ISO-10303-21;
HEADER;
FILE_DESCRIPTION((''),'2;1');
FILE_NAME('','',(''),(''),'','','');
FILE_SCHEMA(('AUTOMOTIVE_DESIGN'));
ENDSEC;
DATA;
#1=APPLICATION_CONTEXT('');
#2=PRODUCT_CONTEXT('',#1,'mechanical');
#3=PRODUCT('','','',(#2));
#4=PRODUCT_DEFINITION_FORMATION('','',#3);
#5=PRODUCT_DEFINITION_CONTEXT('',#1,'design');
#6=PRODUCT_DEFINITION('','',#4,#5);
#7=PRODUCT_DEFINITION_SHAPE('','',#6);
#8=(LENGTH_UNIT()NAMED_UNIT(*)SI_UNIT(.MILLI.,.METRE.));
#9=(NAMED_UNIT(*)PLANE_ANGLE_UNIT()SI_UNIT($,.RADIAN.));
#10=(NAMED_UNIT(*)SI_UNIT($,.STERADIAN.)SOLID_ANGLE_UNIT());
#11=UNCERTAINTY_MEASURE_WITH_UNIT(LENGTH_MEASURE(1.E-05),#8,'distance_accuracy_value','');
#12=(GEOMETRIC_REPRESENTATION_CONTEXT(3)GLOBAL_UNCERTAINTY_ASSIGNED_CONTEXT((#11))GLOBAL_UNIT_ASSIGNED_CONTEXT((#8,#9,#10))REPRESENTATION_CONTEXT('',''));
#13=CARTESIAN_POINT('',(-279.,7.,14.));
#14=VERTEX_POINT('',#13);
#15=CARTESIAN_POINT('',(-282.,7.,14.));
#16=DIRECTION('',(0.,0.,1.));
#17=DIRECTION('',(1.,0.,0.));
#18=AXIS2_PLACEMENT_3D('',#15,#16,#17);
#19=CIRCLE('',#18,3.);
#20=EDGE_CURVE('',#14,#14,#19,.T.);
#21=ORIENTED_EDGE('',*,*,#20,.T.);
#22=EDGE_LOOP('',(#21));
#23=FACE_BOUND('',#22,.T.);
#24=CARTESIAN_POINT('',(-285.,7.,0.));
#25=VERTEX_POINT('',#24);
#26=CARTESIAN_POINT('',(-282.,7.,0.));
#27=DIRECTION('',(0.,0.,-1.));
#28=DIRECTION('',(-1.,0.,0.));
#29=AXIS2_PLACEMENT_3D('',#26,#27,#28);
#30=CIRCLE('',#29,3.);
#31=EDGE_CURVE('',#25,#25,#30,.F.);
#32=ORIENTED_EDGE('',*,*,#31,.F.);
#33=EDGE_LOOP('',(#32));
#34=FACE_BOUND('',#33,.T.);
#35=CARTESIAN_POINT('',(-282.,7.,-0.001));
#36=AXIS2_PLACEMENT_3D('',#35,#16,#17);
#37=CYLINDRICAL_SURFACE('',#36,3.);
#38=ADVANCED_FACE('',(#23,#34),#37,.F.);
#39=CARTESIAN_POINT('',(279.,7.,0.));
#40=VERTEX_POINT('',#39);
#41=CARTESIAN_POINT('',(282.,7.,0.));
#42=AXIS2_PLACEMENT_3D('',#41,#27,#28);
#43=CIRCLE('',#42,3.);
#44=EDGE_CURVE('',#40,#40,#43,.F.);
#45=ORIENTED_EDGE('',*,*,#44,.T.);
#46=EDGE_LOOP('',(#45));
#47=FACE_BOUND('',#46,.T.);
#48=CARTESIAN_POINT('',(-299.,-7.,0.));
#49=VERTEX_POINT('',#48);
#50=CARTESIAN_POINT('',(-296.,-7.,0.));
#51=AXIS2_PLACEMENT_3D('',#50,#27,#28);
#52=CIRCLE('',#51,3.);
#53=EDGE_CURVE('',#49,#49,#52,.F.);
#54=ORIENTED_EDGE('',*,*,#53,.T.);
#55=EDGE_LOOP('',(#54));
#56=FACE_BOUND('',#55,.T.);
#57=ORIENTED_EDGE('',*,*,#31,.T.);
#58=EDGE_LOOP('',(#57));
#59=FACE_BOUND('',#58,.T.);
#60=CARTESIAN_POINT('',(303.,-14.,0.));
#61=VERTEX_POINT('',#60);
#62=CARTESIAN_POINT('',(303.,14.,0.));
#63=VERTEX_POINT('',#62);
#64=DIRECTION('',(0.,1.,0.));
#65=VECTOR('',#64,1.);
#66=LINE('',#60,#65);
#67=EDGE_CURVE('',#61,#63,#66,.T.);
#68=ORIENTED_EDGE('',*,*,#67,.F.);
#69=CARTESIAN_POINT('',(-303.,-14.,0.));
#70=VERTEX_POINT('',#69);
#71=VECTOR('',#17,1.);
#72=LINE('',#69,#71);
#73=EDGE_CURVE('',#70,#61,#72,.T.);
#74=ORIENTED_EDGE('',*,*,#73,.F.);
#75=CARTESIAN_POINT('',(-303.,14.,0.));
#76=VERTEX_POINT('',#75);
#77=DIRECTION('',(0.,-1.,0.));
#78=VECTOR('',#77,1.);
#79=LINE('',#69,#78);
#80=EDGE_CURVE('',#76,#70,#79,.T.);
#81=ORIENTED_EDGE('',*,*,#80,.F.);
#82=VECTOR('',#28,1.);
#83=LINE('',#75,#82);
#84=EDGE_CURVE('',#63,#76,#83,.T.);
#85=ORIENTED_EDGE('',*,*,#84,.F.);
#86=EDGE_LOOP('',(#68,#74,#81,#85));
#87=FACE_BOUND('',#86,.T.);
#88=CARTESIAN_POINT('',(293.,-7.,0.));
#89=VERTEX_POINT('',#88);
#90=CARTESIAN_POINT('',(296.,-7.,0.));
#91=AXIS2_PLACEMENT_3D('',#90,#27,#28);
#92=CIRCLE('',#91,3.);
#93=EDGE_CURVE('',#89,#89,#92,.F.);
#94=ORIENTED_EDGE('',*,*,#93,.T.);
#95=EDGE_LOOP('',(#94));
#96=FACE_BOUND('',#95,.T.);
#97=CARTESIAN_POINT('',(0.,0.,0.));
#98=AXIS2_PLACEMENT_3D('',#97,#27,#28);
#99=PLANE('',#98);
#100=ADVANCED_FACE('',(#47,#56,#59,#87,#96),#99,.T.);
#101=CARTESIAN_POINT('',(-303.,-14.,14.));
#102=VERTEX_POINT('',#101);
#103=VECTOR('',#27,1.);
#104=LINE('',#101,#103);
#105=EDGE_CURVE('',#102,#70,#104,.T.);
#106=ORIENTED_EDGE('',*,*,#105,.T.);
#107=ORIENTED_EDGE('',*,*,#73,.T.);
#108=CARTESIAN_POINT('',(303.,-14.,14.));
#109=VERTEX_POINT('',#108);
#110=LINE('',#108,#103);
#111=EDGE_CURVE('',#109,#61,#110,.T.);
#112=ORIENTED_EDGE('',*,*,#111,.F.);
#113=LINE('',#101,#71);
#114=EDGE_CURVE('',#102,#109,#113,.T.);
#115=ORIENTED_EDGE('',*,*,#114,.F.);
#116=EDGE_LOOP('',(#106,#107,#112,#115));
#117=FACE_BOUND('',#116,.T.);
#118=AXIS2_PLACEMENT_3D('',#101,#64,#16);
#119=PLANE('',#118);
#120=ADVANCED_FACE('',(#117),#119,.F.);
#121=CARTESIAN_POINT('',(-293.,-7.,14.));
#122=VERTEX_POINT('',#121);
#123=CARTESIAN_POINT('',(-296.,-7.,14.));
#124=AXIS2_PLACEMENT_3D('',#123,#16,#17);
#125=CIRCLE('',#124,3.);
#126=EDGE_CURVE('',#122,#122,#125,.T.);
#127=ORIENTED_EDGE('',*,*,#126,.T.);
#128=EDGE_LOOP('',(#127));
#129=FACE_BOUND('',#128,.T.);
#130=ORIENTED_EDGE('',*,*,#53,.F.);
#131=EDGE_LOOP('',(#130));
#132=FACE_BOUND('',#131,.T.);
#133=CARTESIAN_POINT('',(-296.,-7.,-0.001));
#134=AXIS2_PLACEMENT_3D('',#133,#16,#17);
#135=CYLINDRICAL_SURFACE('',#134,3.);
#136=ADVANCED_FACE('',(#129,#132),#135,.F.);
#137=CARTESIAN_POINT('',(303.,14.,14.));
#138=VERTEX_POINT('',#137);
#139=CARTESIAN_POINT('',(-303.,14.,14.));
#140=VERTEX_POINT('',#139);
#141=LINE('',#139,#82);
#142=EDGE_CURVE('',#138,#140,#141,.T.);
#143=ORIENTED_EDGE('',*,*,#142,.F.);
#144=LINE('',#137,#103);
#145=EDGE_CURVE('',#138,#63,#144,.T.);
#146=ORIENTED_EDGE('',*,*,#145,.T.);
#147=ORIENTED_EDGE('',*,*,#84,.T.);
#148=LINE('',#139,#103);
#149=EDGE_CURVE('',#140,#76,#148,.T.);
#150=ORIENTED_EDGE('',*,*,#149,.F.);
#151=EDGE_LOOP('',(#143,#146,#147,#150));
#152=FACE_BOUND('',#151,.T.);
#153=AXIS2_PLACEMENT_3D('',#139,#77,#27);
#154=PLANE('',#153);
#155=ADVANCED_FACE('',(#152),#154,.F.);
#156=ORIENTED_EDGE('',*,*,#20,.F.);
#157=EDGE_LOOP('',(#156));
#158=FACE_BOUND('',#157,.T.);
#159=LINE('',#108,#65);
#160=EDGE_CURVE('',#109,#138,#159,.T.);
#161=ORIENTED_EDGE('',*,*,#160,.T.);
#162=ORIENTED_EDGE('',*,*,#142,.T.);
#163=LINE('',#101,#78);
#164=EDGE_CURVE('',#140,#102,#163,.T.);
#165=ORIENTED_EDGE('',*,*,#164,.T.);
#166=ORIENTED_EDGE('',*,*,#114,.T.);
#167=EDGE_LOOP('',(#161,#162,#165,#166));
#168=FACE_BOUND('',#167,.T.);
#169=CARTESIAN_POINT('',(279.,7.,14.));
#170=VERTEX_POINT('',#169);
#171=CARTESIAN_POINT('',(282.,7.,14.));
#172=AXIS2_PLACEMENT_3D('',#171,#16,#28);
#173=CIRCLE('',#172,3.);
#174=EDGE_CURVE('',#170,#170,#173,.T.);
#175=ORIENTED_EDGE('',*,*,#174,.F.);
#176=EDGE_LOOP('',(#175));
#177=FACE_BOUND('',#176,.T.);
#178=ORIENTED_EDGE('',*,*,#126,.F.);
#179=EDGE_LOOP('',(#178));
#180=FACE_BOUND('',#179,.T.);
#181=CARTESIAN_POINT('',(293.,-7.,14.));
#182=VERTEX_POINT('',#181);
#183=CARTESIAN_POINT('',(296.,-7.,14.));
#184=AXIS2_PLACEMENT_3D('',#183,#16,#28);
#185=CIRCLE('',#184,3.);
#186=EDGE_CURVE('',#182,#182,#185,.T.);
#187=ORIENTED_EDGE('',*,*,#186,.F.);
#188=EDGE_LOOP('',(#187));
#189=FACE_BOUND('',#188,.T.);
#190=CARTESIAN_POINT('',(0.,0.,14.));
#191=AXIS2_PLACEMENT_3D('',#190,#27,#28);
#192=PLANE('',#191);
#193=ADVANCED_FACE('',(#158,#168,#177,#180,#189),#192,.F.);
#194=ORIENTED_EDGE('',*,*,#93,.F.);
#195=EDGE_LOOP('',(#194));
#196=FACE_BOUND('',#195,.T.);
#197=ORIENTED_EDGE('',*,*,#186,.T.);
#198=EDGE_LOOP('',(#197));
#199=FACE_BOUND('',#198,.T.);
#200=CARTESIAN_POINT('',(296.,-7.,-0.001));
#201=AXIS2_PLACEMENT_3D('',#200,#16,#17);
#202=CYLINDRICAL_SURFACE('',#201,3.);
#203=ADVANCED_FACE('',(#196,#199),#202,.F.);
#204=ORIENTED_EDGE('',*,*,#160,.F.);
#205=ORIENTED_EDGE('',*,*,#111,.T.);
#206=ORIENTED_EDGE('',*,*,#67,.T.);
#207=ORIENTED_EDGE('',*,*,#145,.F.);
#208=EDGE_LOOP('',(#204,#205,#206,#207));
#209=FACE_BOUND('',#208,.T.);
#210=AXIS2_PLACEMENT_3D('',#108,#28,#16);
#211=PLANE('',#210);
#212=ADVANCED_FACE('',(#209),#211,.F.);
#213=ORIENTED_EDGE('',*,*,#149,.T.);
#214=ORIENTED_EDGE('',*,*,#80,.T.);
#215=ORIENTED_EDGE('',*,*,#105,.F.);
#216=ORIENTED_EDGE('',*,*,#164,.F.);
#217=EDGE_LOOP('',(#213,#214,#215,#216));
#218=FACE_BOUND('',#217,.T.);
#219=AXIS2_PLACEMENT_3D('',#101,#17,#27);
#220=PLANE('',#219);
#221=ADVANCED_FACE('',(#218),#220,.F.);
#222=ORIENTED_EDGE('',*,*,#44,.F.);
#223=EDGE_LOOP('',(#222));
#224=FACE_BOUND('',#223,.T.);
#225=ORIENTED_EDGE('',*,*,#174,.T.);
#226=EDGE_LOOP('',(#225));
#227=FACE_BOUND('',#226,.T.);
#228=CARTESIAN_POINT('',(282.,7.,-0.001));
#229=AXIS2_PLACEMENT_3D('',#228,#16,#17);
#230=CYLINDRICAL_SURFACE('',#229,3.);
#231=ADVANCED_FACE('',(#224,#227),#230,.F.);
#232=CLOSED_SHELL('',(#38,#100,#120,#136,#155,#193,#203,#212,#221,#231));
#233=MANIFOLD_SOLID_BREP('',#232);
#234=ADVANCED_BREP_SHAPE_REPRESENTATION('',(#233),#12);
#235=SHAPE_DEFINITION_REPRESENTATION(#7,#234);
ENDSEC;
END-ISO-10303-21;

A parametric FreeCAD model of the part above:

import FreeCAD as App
import Part
import Sketcher

V = App.Vector
Q = App.Units.Quantity

doc = App.newDocument("Part")
body = doc.addObject("PartDesign::Body", "Body")

sketch1 = body.newObject("Sketcher::SketchObject", "Sketch")
sketch1.AttachmentSupport = (doc.getObject("XY_Plane"), [""])
sketch1.MapMode = "FlatFace"
sketch1.addGeometry(Part.LineSegment(V(-303, 14, 0), V(-303, -14, 0)), False)
sketch1.addGeometry(Part.LineSegment(V(-303, -14, 0), V(303, -14, 0)), False)
sketch1.addGeometry(Part.LineSegment(V(303, -14, 0), V(303, 14, 0)), False)
sketch1.addGeometry(Part.LineSegment(V(303, 14, 0), V(-303, 14, 0)), False)
sketch1.addConstraint(Sketcher.Constraint("Coincident", 0, 2, 1, 1))
sketch1.addConstraint(Sketcher.Constraint("Coincident", 1, 2, 2, 1))
sketch1.addConstraint(Sketcher.Constraint("Coincident", 2, 2, 3, 1))
sketch1.addConstraint(Sketcher.Constraint("Coincident", 3, 2, 0, 1))
sketch1.addConstraint(Sketcher.Constraint("Vertical", 0))
sketch1.addConstraint(Sketcher.Constraint("Horizontal", 1))
sketch1.addConstraint(Sketcher.Constraint("Vertical", 2))
sketch1.addConstraint(Sketcher.Constraint("Horizontal", 3))
sketch1.addConstraint(Sketcher.Constraint("Symmetric", 0, 2, 2, 2, -1, 1))
sketch1.addConstraint(Sketcher.Constraint("DistanceX", 1, 1, 1, 2, Q("606 mm")))
sketch1.addConstraint(Sketcher.Constraint("DistanceY", 0, 2, 0, 1, Q("28 mm")))
pad1 = body.newObject("PartDesign::Pad", "Pad")
pad1.Profile = sketch1
pad1.Length = 14

sketch2 = body.newObject("Sketcher::SketchObject", "Sketch001")
sketch2.AttachmentSupport = (doc.getObject("XY_Plane"), [""])
sketch2.MapMode = "FlatFace"
sketch2.AttachmentOffset = App.Placement(V(0, 0, 14), App.Rotation())
sketch2.addGeometry(Part.Circle(V(-282, 7, 0), V(0, 0, 1), 3), False)
sketch2.addConstraint(Sketcher.Constraint("Diameter", 0, Q("6 mm")))
sketch2.addConstraint(Sketcher.Constraint("DistanceX", 0, 3, -1, 1, Q("282 mm")))
sketch2.addConstraint(Sketcher.Constraint("DistanceY", -1, 1, 0, 3, Q("7 mm")))
pocket1 = body.newObject("PartDesign::Pocket", "Pocket")
pocket1.Profile = sketch2
pocket1.Type = "UpToFirst"

sketch3 = body.newObject("Sketcher::SketchObject", "Sketch002")
sketch3.AttachmentSupport = (doc.getObject("XY_Plane"), [""])
sketch3.MapMode = "FlatFace"
sketch3.AttachmentOffset = App.Placement(V(0, 0, 14), App.Rotation())
sketch3.addGeometry(Part.Circle(V(-296, -7, 0), V(0, 0, 1), 3), False)
sketch3.addConstraint(Sketcher.Constraint("Diameter", 0, Q("6 mm")))
sketch3.addConstraint(Sketcher.Constraint("DistanceX", 0, 3, -1, 1, Q("296 mm")))
sketch3.addConstraint(Sketcher.Constraint("DistanceY", 0, 3, -1, 1, Q("7 mm")))
pocket2 = body.newObject("PartDesign::Pocket", "Pocket001")
pocket2.Profile = sketch3
pocket2.Type = "UpToFirst"

sketch4 = body.newObject("Sketcher::SketchObject", "Sketch003")
sketch4.AttachmentSupport = (doc.getObject("XY_Plane"), [""])
sketch4.MapMode = "FlatFace"
sketch4.AttachmentOffset = App.Placement(V(0, 0, 14), App.Rotation())
sketch4.addGeometry(Part.Circle(V(296, -7, 0), V(0, 0, 1), 3), False)
sketch4.addConstraint(Sketcher.Constraint("Diameter", 0, Q("6 mm")))
sketch4.addConstraint(Sketcher.Constraint("DistanceX", -1, 1, 0, 3, Q("296 mm")))
sketch4.addConstraint(Sketcher.Constraint("DistanceY", 0, 3, -1, 1, Q("7 mm")))
pocket3 = body.newObject("PartDesign::Pocket", "Pocket002")
pocket3.Profile = sketch4
pocket3.Type = "UpToFirst"

sketch5 = body.newObject("Sketcher::SketchObject", "Sketch004")
sketch5.AttachmentSupport = (doc.getObject("XY_Plane"), [""])
sketch5.MapMode = "FlatFace"
sketch5.AttachmentOffset = App.Placement(V(0, 0, 14), App.Rotation())
sketch5.addGeometry(Part.Circle(V(282, 7, 0), V(0, 0, 1), 3), False)
sketch5.addConstraint(Sketcher.Constraint("Diameter", 0, Q("6 mm")))
sketch5.addConstraint(Sketcher.Constraint("DistanceX", -1, 1, 0, 3, Q("282 mm")))
sketch5.addConstraint(Sketcher.Constraint("DistanceY", -1, 1, 0, 3, Q("7 mm")))
pocket4 = body.newObject("PartDesign::Pocket", "Pocket003")
pocket4.Profile = sketch5
pocket4.Type = "UpToFirst"

doc.recompute()
